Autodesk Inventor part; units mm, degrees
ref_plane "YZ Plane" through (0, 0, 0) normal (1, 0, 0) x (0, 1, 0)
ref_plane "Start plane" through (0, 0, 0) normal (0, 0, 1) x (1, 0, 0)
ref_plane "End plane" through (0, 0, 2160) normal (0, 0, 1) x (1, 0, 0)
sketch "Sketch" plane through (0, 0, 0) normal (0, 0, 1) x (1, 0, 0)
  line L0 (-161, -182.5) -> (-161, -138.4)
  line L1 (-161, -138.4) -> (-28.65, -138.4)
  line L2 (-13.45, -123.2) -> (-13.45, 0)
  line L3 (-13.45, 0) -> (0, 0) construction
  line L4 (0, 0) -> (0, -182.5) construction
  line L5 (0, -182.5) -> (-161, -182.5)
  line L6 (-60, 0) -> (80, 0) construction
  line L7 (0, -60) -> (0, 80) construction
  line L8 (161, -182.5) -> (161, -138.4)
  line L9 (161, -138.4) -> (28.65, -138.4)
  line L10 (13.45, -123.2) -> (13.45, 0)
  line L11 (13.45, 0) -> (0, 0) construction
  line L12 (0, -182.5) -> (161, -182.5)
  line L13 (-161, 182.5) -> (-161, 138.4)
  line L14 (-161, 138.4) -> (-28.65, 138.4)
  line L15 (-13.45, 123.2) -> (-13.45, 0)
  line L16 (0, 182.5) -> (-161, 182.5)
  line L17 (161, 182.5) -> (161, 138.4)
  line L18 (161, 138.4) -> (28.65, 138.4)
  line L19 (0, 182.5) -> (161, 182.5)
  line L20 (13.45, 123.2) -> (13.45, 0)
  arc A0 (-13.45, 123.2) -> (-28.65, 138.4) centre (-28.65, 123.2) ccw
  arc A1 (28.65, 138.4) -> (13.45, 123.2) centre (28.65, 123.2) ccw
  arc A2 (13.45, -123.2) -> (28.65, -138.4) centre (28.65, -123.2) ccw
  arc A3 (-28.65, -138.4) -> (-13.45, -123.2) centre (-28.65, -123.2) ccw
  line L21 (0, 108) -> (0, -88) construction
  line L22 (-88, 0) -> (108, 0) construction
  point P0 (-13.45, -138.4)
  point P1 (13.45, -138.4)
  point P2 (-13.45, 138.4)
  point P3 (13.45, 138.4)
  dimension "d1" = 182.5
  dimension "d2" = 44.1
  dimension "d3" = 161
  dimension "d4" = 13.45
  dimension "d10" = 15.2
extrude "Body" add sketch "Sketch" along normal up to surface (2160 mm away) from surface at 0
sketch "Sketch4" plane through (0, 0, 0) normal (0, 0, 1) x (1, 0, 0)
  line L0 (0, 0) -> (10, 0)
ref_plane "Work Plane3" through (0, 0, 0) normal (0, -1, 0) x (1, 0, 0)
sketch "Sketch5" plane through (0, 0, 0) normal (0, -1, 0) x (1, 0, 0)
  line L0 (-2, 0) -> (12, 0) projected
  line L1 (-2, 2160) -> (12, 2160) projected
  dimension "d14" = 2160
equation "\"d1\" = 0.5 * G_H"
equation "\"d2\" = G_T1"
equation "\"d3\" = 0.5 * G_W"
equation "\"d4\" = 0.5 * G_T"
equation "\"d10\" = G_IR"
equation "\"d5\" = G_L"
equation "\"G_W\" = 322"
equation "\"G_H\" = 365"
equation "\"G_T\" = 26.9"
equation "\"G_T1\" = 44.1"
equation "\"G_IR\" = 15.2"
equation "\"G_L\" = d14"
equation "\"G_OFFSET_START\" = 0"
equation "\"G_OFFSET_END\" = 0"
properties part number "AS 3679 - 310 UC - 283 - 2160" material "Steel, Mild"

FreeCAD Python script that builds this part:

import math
import FreeCAD as App
import Part
import Sketcher
Q = App.Units.Quantity

doc = App.newDocument("Part")
body = doc.addObject("PartDesign::Body", "Body")

sketch1 = body.newObject("Sketcher::SketchObject", "Sketch")
sketch1.AttachmentSupport = (doc.getObject("XY_Plane"), [""])
sketch1.MapMode = "FlatFace"
sketch1.addGeometry([
    Part.LineSegment(App.Vector(-161, -138, 0), App.Vector(-161, -182, 0)),
    Part.LineSegment(App.Vector(-161, -182, 0), App.Vector(161, -182, 0)),
    Part.LineSegment(App.Vector(161, -182, 0), App.Vector(161, -138, 0)),
    Part.LineSegment(App.Vector(161, -138, 0), App.Vector(29, -138, 0)),
    Part.ArcOfCircle(Part.Circle(App.Vector(29, -123, 0), App.Vector(0, 0, 1), 15), math.radians(180), math.radians(270)),
    Part.LineSegment(App.Vector(13, -123, 0), App.Vector(13, 123, 0)),
    Part.ArcOfCircle(Part.Circle(App.Vector(29, 123, 0), App.Vector(0, 0, 1), 15), math.radians(90), math.radians(180)),
    Part.LineSegment(App.Vector(29, 138, 0), App.Vector(161, 138, 0)),
    Part.LineSegment(App.Vector(161, 138, 0), App.Vector(161, 182, 0)),
    Part.LineSegment(App.Vector(161, 182, 0), App.Vector(-161, 182, 0)),
    Part.LineSegment(App.Vector(-161, 182, 0), App.Vector(-161, 138, 0)),
    Part.LineSegment(App.Vector(-161, 138, 0), App.Vector(-29, 138, 0)),
    Part.ArcOfCircle(Part.Circle(App.Vector(-29, 123, 0), App.Vector(0, 0, 1), 15), math.radians(0), math.radians(90)),
    Part.LineSegment(App.Vector(-13, 123, 0), App.Vector(-13, -123, 0)),
    Part.ArcOfCircle(Part.Circle(App.Vector(-29, -123, 0), App.Vector(0, 0, 1), 15), math.radians(-90), math.radians(0)),
    Part.LineSegment(App.Vector(-29, -138, 0), App.Vector(-161, -138, 0)),
], False)
sketch1.addConstraint([
    Sketcher.Constraint("Coincident", 0, 2, 1, 1),
    Sketcher.Constraint("Coincident", 1, 2, 2, 1),
    Sketcher.Constraint("Coincident", 2, 2, 3, 1),
    Sketcher.Constraint("Tangent", 3, 2, 4, 2),
    Sketcher.Constraint("Tangent", 4, 1, 5, 1),
    Sketcher.Constraint("Tangent", 5, 2, 6, 2),
    Sketcher.Constraint("Tangent", 6, 1, 7, 1),
    Sketcher.Constraint("Coincident", 7, 2, 8, 1),
    Sketcher.Constraint("Coincident", 8, 2, 9, 1),
    Sketcher.Constraint("Coincident", 9, 2, 10, 1),
    Sketcher.Constraint("Coincident", 10, 2, 11, 1),
    Sketcher.Constraint("Tangent", 11, 2, 12, 2),
    Sketcher.Constraint("Tangent", 12, 1, 13, 1),
    Sketcher.Constraint("Tangent", 13, 2, 14, 2),
    Sketcher.Constraint("Tangent", 14, 1, 15, 1),
    Sketcher.Constraint("Coincident", 15, 2, 0, 1),
    Sketcher.Constraint("Vertical", 0),
    Sketcher.Constraint("Horizontal", 1),
    Sketcher.Constraint("Vertical", 2),
    Sketcher.Constraint("Horizontal", 3),
    Sketcher.Constraint("Vertical", 5),
    Sketcher.Constraint("Horizontal", 7),
    Sketcher.Constraint("Vertical", 8),
    Sketcher.Constraint("Horizontal", 9),
    Sketcher.Constraint("Vertical", 10),
    Sketcher.Constraint("Horizontal", 11),
    Sketcher.Constraint("Vertical", 13),
    Sketcher.Constraint("Horizontal", 15),
    Sketcher.Constraint("Equal", 4, 6),
    Sketcher.Constraint("Equal", 6, 12),
    Sketcher.Constraint("Equal", 12, 14),
    Sketcher.Constraint("Symmetric", 4, 3, 12, 3, -1, 1),
    Sketcher.Constraint("Symmetric", 0, 2, 8, 2, -1, 1),
    Sketcher.Constraint("Symmetric", 7, 2, 10, 2, -2),
    Sketcher.Constraint("Symmetric", 2, 2, 15, 2, -2),
    Sketcher.Constraint("Radius", 4, Q("15.2 mm")),
    Sketcher.Constraint("DistanceY", 0, 2, 0, 1, Q("44.1 mm")),
    Sketcher.Constraint("DistanceX", 0, 2, -1, 1, Q("161 mm")),
    Sketcher.Constraint("DistanceY", 0, 2, -1, 1, Q("182.5 mm")),
    Sketcher.Constraint("DistanceX", -1, 1, 4, 1, Q("13.45 mm")),
])
pad1 = body.newObject("PartDesign::Pad", "Pad")
pad1.Profile = sketch1
pad1.Length = 2160

doc.recompute()
